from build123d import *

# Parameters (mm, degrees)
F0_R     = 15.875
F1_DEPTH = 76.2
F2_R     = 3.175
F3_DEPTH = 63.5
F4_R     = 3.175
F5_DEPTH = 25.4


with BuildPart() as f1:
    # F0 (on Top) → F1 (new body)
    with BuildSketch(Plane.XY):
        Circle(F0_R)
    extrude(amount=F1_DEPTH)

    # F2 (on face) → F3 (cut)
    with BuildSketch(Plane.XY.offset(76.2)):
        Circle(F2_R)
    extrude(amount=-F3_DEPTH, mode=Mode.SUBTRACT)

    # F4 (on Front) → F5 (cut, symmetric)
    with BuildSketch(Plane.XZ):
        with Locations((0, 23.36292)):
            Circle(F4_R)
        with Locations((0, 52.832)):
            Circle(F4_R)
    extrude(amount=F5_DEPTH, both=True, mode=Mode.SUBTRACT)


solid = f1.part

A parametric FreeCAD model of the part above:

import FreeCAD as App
import Part
import Sketcher

V = App.Vector
Q = App.Units.Quantity

doc = App.newDocument("Part")
body = doc.addObject("PartDesign::Body", "Body")

# Sketch on XY plane
sketch1 = body.newObject("Sketcher::SketchObject", "Sketch")
sketch1.AttachmentSupport = (doc.getObject("XY_Plane"), [""])
sketch1.MapMode = "FlatFace"
sketch1.addGeometry(Part.Circle(V(0, 0, 0), V(0, 0, 1), 16), False)
sketch1.addConstraint(Sketcher.Constraint("Coincident", 0, 3, -1, 1))
sketch1.addConstraint(Sketcher.Constraint("Diameter", 0, Q("1.25 in")))
pad1 = body.newObject("PartDesign::Pad", "Pad")
pad1.Profile = sketch1
pad1.Length = Q("3 in")

# Sketch on XY plane
sketch2 = body.newObject("Sketcher::SketchObject", "Sketch001")
sketch2.AttachmentSupport = (doc.getObject("XY_Plane"), [""])
sketch2.MapMode = "FlatFace"
sketch2.AttachmentOffset = App.Placement(V(0, 0, 3 * 25.4), App.Rotation())
sketch2.addGeometry(Part.Circle(V(0, 0, 0), V(0, 0, 1), 3.2), False)
sketch2.addConstraint(Sketcher.Constraint("Coincident", 0, 3, -1, 1))
sketch2.addConstraint(Sketcher.Constraint("Diameter", 0, Q("0.25 in")))
pocket1 = body.newObject("PartDesign::Pocket", "Pocket")
pocket1.Profile = sketch2
pocket1.Length = Q("2.5 in")

# Sketch on XZ plane
sketch3 = body.newObject("Sketcher::SketchObject", "Sketch002")
sketch3.AttachmentSupport = (doc.getObject("XZ_Plane"), [""])
sketch3.MapMode = "FlatFace"
sketch3.addGeometry(Part.Circle(V(0, 23.4, 0), V(0, 0, 1), 3.2), False)
sketch3.addGeometry(Part.Circle(V(0, 52.8, 0), V(0, 0, 1), 3.2), False)
sketch3.addConstraint(Sketcher.Constraint("Equal", 0, 1))
sketch3.addConstraint(Sketcher.Constraint("PointOnObject", 0, 3, -2))
sketch3.addConstraint(Sketcher.Constraint("PointOnObject", 1, 3, -2))
sketch3.addConstraint(Sketcher.Constraint("Diameter", 0, Q("0.25 in")))
sketch3.addConstraint(Sketcher.Constraint("DistanceY", -1, 1, 1, 3, Q("2.08 in")))
sketch3.addConstraint(Sketcher.Constraint("DistanceY", -1, 1, 0, 3, Q("0.9198 in")))
pocket2 = body.newObject("PartDesign::Pocket", "Pocket001")
pocket2.Profile = sketch3
pocket2.Length = Q("2 in")
pocket2.Midplane = True

doc.recompute()
